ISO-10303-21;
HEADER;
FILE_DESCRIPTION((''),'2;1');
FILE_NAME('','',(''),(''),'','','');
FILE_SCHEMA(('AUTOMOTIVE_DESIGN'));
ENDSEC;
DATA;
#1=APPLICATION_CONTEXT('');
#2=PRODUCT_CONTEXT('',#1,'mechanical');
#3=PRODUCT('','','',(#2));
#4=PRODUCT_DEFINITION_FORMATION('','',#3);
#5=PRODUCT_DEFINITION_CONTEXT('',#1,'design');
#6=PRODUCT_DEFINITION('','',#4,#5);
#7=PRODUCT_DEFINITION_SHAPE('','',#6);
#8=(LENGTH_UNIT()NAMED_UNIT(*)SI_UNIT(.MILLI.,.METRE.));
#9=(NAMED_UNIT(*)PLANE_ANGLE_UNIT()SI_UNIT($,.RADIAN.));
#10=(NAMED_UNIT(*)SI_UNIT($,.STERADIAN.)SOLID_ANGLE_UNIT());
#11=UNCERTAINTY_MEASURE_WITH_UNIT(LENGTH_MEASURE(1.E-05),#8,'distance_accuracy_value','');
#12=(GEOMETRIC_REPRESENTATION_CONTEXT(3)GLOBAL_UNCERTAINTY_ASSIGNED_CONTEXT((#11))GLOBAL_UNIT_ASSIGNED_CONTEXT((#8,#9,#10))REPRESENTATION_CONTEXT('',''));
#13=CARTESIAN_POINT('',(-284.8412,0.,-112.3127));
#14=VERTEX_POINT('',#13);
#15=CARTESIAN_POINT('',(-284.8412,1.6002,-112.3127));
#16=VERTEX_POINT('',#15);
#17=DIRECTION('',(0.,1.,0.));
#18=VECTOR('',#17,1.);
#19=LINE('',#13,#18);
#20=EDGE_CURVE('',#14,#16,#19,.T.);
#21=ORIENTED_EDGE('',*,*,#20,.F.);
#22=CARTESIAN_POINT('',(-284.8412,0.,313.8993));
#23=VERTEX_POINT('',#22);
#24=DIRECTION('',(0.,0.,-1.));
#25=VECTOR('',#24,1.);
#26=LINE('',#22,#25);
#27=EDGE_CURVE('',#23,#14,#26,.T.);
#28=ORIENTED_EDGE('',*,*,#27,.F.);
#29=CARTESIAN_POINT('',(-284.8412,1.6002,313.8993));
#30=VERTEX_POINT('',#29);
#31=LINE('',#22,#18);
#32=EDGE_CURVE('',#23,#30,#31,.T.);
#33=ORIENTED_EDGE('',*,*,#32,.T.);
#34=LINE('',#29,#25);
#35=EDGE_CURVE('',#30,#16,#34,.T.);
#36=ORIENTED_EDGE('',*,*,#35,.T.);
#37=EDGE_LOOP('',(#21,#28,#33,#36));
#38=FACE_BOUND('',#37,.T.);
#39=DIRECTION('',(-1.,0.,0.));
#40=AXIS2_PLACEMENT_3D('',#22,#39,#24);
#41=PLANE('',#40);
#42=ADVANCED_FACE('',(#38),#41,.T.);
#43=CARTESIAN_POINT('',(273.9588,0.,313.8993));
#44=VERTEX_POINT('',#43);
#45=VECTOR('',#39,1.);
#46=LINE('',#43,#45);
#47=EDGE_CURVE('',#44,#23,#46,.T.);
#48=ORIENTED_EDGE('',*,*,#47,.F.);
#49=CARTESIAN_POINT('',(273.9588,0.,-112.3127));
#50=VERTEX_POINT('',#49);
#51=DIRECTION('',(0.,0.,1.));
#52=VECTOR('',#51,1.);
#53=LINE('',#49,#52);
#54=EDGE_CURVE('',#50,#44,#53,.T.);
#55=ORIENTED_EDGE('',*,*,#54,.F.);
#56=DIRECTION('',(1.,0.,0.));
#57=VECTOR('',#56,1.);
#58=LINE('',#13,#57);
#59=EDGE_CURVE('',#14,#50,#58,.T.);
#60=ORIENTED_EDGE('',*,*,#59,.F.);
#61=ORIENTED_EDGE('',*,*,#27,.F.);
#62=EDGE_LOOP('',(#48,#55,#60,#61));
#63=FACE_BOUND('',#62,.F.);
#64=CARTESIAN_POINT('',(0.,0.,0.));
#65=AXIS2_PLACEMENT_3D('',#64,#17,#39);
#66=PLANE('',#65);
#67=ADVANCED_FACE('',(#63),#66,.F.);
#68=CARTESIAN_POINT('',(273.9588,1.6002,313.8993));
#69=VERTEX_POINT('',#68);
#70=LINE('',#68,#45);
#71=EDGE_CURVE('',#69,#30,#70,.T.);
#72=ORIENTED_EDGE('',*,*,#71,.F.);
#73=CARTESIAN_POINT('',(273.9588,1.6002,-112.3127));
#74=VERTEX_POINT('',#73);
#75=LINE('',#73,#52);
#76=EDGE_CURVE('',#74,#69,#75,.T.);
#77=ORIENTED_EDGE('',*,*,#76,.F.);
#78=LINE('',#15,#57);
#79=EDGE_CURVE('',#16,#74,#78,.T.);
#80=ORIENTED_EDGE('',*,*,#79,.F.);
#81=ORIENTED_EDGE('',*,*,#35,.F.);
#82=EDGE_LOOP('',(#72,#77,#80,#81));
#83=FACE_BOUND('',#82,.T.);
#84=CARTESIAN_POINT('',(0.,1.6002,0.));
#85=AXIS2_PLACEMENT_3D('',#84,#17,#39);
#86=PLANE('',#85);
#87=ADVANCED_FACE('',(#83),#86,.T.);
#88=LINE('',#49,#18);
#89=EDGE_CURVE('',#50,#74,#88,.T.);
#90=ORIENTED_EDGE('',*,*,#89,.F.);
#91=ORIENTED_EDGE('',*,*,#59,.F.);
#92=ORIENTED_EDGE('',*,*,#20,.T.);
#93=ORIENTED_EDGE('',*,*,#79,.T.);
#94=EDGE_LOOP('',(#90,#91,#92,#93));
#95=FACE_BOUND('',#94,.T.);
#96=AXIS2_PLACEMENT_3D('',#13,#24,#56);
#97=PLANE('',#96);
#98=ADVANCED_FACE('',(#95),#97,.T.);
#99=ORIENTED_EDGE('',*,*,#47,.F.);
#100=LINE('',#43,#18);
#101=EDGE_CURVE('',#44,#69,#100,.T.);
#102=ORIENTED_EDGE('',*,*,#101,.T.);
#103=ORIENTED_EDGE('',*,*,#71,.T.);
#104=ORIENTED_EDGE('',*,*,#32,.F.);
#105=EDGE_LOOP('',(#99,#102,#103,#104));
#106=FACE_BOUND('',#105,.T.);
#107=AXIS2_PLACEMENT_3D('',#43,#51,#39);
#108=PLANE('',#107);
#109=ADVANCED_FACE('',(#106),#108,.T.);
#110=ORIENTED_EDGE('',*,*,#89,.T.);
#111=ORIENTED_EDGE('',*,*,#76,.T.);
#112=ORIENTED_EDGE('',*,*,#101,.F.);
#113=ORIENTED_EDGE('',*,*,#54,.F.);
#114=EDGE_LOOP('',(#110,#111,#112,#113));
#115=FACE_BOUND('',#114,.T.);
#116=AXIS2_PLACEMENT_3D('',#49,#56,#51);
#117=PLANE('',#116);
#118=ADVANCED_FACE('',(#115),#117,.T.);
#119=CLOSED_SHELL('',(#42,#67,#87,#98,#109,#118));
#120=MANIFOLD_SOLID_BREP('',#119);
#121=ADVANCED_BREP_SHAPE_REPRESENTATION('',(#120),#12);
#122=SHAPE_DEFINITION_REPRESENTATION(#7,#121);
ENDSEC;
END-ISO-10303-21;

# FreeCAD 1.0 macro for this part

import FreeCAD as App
import Part
import Sketcher

V = App.Vector
Q = App.Units.Quantity

doc = App.newDocument("Part")
body = doc.addObject("PartDesign::Body", "Body")

# Sketch on XZ plane
sketch1 = body.newObject("Sketcher::SketchObject", "Sketch")
sketch1.AttachmentSupport = (doc.getObject("XZ_Plane"), [""])
sketch1.MapMode = "FlatFace"
sketch1.addGeometry([
    Part.LineSegment(V(273.9588, -112.3127, 0), V(-284.8412, -112.3127, 0)),
    Part.LineSegment(V(-284.8412, -112.3127, 0), V(-284.8412, 313.8993, 0)),
    Part.LineSegment(V(-284.8412, 313.8993, 0), V(273.9588, 313.8993, 0)),
    Part.LineSegment(V(273.9588, 313.8993, 0), V(273.9588, -112.3127, 0)),
], False)
sketch1.addConstraint([
    Sketcher.Constraint("Coincident", 0, 2, 1, 1),
    Sketcher.Constraint("Coincident", 1, 2, 2, 1),
    Sketcher.Constraint("Coincident", 2, 2, 3, 1),
    Sketcher.Constraint("Coincident", 3, 2, 0, 1),
    Sketcher.Constraint("Horizontal", 0),
    Sketcher.Constraint("Vertical", 1),
    Sketcher.Constraint("Horizontal", 2),
    Sketcher.Constraint("Vertical", 3),
    Sketcher.Constraint("DistanceX", 0, 2, 0, 1, Q("22 in")),
    Sketcher.Constraint("DistanceY", 1, 1, 1, 2, Q("16.78 in")),
    Sketcher.Constraint("DistanceX", 0, 2, -1, 1, Q("284.8412 mm")),
    Sketcher.Constraint("DistanceY", 0, 2, -1, 1, Q("112.3127 mm")),
])
pad1 = body.newObject("PartDesign::Pad", "Pad")
pad1.Profile = sketch1
pad1.Length = Q("0.063 in")
pad1.Reversed = True

doc.recompute()
